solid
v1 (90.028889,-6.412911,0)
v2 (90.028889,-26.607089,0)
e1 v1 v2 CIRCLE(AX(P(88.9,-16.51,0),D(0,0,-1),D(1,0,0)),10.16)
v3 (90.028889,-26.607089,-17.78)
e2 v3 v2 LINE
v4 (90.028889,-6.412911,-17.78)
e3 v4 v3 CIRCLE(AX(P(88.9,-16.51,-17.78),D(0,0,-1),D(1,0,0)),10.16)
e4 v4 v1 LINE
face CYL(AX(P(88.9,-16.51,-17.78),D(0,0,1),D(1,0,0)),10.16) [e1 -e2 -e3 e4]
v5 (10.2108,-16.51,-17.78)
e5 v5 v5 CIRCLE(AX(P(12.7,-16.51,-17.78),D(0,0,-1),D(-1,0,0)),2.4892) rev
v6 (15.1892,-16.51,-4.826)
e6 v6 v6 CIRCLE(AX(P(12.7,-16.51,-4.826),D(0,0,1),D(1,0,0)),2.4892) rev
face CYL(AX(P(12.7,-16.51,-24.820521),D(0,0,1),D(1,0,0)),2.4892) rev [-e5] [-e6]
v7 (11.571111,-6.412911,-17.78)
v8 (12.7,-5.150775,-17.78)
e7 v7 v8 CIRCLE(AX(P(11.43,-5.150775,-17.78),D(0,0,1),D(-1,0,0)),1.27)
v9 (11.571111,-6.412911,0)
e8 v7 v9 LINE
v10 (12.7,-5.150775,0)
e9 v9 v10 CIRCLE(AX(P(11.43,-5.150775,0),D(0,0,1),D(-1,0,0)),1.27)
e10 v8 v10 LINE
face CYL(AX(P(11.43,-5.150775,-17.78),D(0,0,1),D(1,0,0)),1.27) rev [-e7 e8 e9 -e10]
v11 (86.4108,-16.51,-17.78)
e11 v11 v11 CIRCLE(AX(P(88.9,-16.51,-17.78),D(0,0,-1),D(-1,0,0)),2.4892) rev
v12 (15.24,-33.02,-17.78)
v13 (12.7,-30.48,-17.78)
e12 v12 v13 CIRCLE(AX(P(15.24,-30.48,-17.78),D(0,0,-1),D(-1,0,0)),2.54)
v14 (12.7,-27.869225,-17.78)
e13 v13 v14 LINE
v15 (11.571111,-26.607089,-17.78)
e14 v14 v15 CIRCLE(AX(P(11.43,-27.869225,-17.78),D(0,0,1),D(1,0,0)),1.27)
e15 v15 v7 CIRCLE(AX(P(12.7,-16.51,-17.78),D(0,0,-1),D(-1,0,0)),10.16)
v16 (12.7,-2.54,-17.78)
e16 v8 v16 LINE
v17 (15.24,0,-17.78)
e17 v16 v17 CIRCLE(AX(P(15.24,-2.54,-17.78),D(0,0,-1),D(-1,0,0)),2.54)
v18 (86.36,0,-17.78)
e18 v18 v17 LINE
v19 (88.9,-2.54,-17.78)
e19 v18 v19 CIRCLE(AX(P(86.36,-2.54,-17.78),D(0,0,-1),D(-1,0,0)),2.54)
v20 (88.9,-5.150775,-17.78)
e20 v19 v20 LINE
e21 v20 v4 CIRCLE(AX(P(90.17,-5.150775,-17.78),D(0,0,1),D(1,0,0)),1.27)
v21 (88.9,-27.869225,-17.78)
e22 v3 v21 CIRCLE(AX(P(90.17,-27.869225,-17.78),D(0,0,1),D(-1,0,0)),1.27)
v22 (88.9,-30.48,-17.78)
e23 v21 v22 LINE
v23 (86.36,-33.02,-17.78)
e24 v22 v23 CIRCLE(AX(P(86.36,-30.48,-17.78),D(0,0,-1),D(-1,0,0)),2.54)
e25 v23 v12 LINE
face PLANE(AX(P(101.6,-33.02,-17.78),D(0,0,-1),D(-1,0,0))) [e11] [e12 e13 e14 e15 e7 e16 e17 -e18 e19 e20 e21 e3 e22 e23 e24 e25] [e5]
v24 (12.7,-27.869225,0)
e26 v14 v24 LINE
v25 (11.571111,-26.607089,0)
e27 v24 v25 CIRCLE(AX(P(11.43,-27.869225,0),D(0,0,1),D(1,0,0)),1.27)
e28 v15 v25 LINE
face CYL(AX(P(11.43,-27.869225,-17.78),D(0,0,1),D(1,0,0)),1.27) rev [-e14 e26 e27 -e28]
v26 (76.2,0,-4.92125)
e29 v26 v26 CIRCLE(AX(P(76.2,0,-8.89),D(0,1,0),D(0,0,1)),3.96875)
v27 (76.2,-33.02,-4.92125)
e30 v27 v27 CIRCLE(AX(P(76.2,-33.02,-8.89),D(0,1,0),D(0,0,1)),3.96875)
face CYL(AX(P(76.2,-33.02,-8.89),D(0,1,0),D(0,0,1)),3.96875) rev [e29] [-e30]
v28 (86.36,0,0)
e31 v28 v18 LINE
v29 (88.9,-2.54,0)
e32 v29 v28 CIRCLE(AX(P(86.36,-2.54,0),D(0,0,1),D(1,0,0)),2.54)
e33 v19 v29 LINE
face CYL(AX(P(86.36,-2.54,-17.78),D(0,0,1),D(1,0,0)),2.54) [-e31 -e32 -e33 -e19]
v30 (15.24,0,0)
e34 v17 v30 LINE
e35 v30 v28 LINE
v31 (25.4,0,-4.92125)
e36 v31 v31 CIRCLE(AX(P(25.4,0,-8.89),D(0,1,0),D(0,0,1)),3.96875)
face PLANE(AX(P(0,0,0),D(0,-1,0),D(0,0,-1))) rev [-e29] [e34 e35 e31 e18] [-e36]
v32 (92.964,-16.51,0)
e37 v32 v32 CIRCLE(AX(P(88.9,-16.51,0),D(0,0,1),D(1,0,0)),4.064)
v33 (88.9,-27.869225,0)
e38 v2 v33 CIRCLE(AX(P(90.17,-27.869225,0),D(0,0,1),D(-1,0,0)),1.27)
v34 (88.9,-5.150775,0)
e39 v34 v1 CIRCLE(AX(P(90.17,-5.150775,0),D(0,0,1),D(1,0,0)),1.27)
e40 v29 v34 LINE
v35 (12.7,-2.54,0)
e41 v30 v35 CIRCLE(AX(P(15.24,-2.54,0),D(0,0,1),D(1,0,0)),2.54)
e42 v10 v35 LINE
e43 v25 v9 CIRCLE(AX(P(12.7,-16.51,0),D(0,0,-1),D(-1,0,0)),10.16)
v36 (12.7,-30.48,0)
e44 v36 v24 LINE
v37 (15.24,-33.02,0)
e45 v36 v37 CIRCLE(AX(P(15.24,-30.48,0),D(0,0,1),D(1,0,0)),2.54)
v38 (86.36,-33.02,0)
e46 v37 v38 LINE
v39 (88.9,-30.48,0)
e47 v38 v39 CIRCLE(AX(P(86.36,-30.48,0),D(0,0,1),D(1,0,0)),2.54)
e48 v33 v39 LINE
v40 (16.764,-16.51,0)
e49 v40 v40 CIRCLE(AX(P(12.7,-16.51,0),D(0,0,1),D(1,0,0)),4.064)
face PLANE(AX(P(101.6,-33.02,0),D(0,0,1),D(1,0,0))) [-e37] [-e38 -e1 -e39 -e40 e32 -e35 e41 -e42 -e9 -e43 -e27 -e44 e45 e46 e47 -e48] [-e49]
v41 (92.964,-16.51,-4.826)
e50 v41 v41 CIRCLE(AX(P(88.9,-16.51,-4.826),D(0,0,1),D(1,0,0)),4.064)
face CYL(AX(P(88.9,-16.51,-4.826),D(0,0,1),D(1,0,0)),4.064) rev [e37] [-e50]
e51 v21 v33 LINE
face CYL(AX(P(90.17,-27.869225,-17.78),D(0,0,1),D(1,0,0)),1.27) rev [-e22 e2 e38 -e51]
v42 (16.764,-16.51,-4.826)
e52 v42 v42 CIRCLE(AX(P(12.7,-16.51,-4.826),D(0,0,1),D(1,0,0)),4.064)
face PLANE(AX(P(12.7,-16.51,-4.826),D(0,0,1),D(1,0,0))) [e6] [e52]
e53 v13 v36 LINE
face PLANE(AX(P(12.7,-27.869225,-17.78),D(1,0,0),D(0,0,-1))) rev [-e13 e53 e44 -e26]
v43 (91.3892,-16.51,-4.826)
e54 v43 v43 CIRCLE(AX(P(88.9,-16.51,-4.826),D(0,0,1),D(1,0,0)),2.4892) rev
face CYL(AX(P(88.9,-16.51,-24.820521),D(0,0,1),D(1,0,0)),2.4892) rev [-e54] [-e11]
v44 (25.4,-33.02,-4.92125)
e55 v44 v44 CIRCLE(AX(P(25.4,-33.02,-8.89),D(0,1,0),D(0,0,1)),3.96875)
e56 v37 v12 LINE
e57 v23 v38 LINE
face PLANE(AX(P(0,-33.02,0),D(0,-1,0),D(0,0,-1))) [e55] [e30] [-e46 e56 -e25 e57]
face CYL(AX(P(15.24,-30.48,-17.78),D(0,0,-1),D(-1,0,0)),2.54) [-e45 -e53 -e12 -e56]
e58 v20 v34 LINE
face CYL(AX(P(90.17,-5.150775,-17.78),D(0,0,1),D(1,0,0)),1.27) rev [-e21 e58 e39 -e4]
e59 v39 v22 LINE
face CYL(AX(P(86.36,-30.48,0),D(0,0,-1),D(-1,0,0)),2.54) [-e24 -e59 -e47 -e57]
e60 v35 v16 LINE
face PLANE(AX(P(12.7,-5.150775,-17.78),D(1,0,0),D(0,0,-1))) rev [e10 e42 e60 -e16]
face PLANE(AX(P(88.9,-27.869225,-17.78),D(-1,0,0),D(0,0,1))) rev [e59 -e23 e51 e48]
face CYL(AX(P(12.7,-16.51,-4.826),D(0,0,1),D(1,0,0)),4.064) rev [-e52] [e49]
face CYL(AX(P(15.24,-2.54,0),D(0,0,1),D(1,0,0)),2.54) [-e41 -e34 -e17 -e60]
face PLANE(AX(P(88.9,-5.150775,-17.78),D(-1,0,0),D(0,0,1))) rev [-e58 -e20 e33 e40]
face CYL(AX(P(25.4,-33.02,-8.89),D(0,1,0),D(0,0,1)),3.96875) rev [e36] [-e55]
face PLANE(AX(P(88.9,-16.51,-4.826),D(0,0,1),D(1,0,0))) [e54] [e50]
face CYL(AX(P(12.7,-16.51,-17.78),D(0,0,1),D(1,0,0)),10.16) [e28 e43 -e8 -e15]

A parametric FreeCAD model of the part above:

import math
import FreeCAD as App
import Part
import Sketcher

V = App.Vector
Q = App.Units.Quantity


def edges_at(feature, points):
    """Names of the edges that pass closest to the given points."""
    edges = feature.Shape.Edges
    near = lambda p: min(range(len(edges)), key=lambda i: edges[i].distToShape(Part.Vertex(*p))[0])
    return sorted({f"Edge{near(p) + 1}" for p in points})


def add_polygon(sketch, points):
    """Adds a closed chain of lines whose ends are joined by coincident constraints."""
    first, n = sketch.GeometryCount, len(points)
    for a, b in zip(points, points[1:] + points[:1]):
        sketch.addGeometry(Part.LineSegment(App.Vector(*a, 0), App.Vector(*b, 0)), False)
    for i in range(n):
        sketch.addConstraint(Sketcher.Constraint("Coincident", first + i, 2, first + (i + 1) % n, 1))

doc = App.newDocument("Part")
body = doc.addObject("PartDesign::Body", "Body")

# Sketch on XZ plane
sketch1 = body.newObject("Sketcher::SketchObject", "Sketch")
sketch1.AttachmentSupport = (doc.getObject("XZ_Plane"), [""])
sketch1.MapMode = "FlatFace"
add_polygon(sketch1, [(0, -17.8), (0, 0), (101.6, 0), (101.6, -17.8)])  # lines 0-3
sketch1.addGeometry(Part.Circle(V(25.4, -8.9, 0), V(0, 0, 1), 4), False)  # 4
sketch1.addGeometry(Part.Circle(V(76.2, -8.9, 0), V(0, 0, 1), 4), False)  # 5
sketch1.addConstraint(Sketcher.Constraint("Vertical", 0))
sketch1.addConstraint(Sketcher.Constraint("Horizontal", 1))
sketch1.addConstraint(Sketcher.Constraint("Vertical", 2))
sketch1.addConstraint(Sketcher.Constraint("Horizontal", 3))
sketch1.addConstraint(Sketcher.Constraint("Coincident", 0, 2, -1, 1))
sketch1.addConstraint(Sketcher.Constraint("Equal", 4, 5))
sketch1.addConstraint(Sketcher.Constraint("Horizontal", 4, 3, 5, 3))
sketch1.addConstraint(Sketcher.Constraint("DistanceX", 1, 1, 1, 2, Q("4 in")))
sketch1.addConstraint(Sketcher.Constraint("Diameter", 4, Q("0.3125 in")))
sketch1.addConstraint(Sketcher.Constraint("DistanceY", 0, 1, 0, 2, Q("0.7 in")))
sketch1.addConstraint(Sketcher.Constraint("DistanceX", -1, 1, 4, 3, Q("1 in")))
sketch1.addConstraint(Sketcher.Constraint("DistanceX", -1, 1, 5, 3, Q("3 in")))
sketch1.addConstraint(Sketcher.Constraint("DistanceY", 4, 3, -1, 1, Q("0.35 in")))
pad1 = body.newObject("PartDesign::Pad", "Pad")
pad1.Profile = sketch1
pad1.Length = Q("1.3 in")

# Sketch on XY plane
sketch2 = body.newObject("Sketcher::SketchObject", "Sketch001")
sketch2.AttachmentSupport = (doc.getObject("XY_Plane"), [""])
sketch2.MapMode = "FlatFace"
sketch2.addGeometry(Part.Circle(V(88.9, -16.5, 0), V(0, 0, 1), 2.5), False)
sketch2.addGeometry(Part.Circle(V(12.7, -16.5, 0), V(0, 0, 1), 2.5), False)
sketch2.addConstraint(Sketcher.Constraint("Equal", 0, 1))
sketch2.addConstraint(Sketcher.Constraint("Horizontal", 0, 3, 1, 3))
sketch2.addConstraint(Sketcher.Constraint("Diameter", 0, Q("0.196 in")))
sketch2.addConstraint(Sketcher.Constraint("DistanceX", 1, 3, 0, 3, Q("3 in")))
sketch2.addConstraint(Sketcher.Constraint("DistanceX", -1, 1, 0, 3, Q("3.5 in")))
sketch2.addConstraint(Sketcher.Constraint("DistanceY", 0, 3, -1, 1, Q("0.65 in")))
pocket1 = body.newObject("PartDesign::Pocket", "Pocket")
pocket1.Profile = sketch2
pocket1.Length = Q("0.7 in")

# Sketch on XY plane
sketch3 = body.newObject("Sketcher::SketchObject", "Sketch002")
sketch3.AttachmentSupport = (doc.getObject("XY_Plane"), [""])
sketch3.MapMode = "FlatFace"
sketch3.addGeometry(Part.Circle(V(88.9, -16.5, 0), V(0, 0, 1), 4.1), False)
sketch3.addGeometry(Part.Circle(V(12.7, -16.5, 0), V(0, 0, 1), 4.1), False)
sketch3.addConstraint(Sketcher.Constraint("Equal", 0, 1))
sketch3.addConstraint(Sketcher.Constraint("Horizontal", 0, 3, 1, 3))
sketch3.addConstraint(Sketcher.Constraint("Diameter", 0, Q("0.32 in")))
sketch3.addConstraint(Sketcher.Constraint("DistanceX", 1, 3, 0, 3, Q("3 in")))
sketch3.addConstraint(Sketcher.Constraint("DistanceX", -1, 1, 0, 3, Q("3.5 in")))
sketch3.addConstraint(Sketcher.Constraint("DistanceY", 0, 3, -1, 1, Q("0.65 in")))
pocket2 = body.newObject("PartDesign::Pocket", "Pocket001")
pocket2.Profile = sketch3
pocket2.Length = Q("0.19 in")

# Sketch on XY plane
sketch4 = body.newObject("Sketcher::SketchObject", "Sketch003")
sketch4.AttachmentSupport = (doc.getObject("XY_Plane"), [""])
sketch4.MapMode = "FlatFace"
sketch4.addGeometry(Part.LineSegment(V(12.7, -5.2, 0), V(12.7, 0, 0)), False)
sketch4.addGeometry(Part.LineSegment(V(12.7, 0, 0), V(0, 0, 0)), False)
sketch4.addGeometry(Part.LineSegment(V(0, 0, 0), V(0, -33, 0)), False)
sketch4.addGeometry(Part.LineSegment(V(0, -33, 0), V(12.7, -33, 0)), False)
sketch4.addGeometry(Part.LineSegment(V(12.7, -33, 0), V(12.7, -27.9, 0)), False)
sketch4.addGeometry(Part.ArcOfCircle(Part.Circle(V(11.4, -27.9, 0), V(0, 0, 1), 1.3), math.radians(0), math.radians(84)), False)
sketch4.addGeometry(Part.ArcOfCircle(Part.Circle(V(12.7, -16.5, 0), V(0, 0, 1), 10.2), math.radians(96), math.radians(264)), False)
sketch4.addGeometry(Part.ArcOfCircle(Part.Circle(V(11.4, -5.2, 0), V(0, 0, 1), 1.3), math.radians(-84), math.radians(0)), False)
sketch4.addGeometry(Part.LineSegment(V(88.9, 0, 0), V(88.9, -5.2, 0)), False)
sketch4.addGeometry(Part.ArcOfCircle(Part.Circle(V(90.2, -5.2, 0), V(0, 0, 1), 1.3), math.radians(-180), math.radians(-96)), False)
sketch4.addGeometry(Part.ArcOfCircle(Part.Circle(V(88.9, -16.5, 0), V(0, 0, 1), 10.2), math.radians(-84), math.radians(84)), False)
sketch4.addGeometry(Part.ArcOfCircle(Part.Circle(V(90.2, -27.9, 0), V(0, 0, 1), 1.3), math.radians(96), math.radians(180)), False)
sketch4.addGeometry(Part.LineSegment(V(88.9, -27.9, 0), V(88.9, -33, 0)), False)
sketch4.addGeometry(Part.LineSegment(V(88.9, -33, 0), V(101.6, -33, 0)), False)
sketch4.addGeometry(Part.LineSegment(V(101.6, -33, 0), V(101.6, 0, 0)), False)
sketch4.addGeometry(Part.LineSegment(V(101.6, 0, 0), V(88.9, 0, 0)), False)
sketch4.addConstraint(Sketcher.Constraint("Coincident", 0, 2, 1, 1))
sketch4.addConstraint(Sketcher.Constraint("Coincident", 1, 2, 2, 1))
sketch4.addConstraint(Sketcher.Constraint("Coincident", 2, 2, 3, 1))
sketch4.addConstraint(Sketcher.Constraint("Coincident", 3, 2, 4, 1))
sketch4.addConstraint(Sketcher.Constraint("Tangent", 4, 2, 5, 1))
sketch4.addConstraint(Sketcher.Constraint("Tangent", 5, 2, 6, 2))
sketch4.addConstraint(Sketcher.Constraint("Tangent", 6, 1, 7, 1))
sketch4.addConstraint(Sketcher.Constraint("Tangent", 7, 2, 0, 1))
sketch4.addConstraint(Sketcher.Constraint("Tangent", 8, 2, 9, 1))
sketch4.addConstraint(Sketcher.Constraint("Tangent", 9, 2, 10, 2))
sketch4.addConstraint(Sketcher.Constraint("Tangent", 10, 1, 11, 1))
sketch4.addConstraint(Sketcher.Constraint("Tangent", 11, 2, 12, 1))
sketch4.addConstraint(Sketcher.Constraint("Coincident", 12, 2, 13, 1))
sketch4.addConstraint(Sketcher.Constraint("Coincident", 13, 2, 14, 1))
sketch4.addConstraint(Sketcher.Constraint("Coincident", 14, 2, 15, 1))
sketch4.addConstraint(Sketcher.Constraint("Coincident", 15, 2, 8, 1))
sketch4.addConstraint(Sketcher.Constraint("Vertical", 0))
sketch4.addConstraint(Sketcher.Constraint("Horizontal", 1))
sketch4.addConstraint(Sketcher.Constraint("Vertical", 2))
sketch4.addConstraint(Sketcher.Constraint("Horizontal", 3))
sketch4.addConstraint(Sketcher.Constraint("Vertical", 4))
sketch4.addConstraint(Sketcher.Constraint("Vertical", 8))
sketch4.addConstraint(Sketcher.Constraint("Vertical", 12))
sketch4.addConstraint(Sketcher.Constraint("Horizontal", 13))
sketch4.addConstraint(Sketcher.Constraint("Vertical", 14))
sketch4.addConstraint(Sketcher.Constraint("Horizontal", 15))
sketch4.addConstraint(Sketcher.Constraint("Coincident", 1, 2, -1, 1))
sketch4.addConstraint(Sketcher.Constraint("Equal", 5, 7))
sketch4.addConstraint(Sketcher.Constraint("Equal", 7, 9))
sketch4.addConstraint(Sketcher.Constraint("Equal", 6, 10))
sketch4.addConstraint(Sketcher.Constraint("Equal", 9, 11))
sketch4.addConstraint(Sketcher.Constraint("PointOnObject", 14, 2, -1))
sketch4.addConstraint(Sketcher.Constraint("Horizontal", 7, 3, 9, 3))
sketch4.addConstraint(Sketcher.Constraint("Horizontal", 6, 3, 10, 3))
sketch4.addConstraint(Sketcher.Constraint("Horizontal", 5, 3, 11, 3))
sketch4.addConstraint(Sketcher.Constraint("Horizontal", 3, 2, 12, 2))
sketch4.addConstraint(Sketcher.Constraint("Vertical", 5, 3, 7, 3))
sketch4.addConstraint(Sketcher.Constraint("Vertical", 6, 3, 0, 2))
sketch4.addConstraint(Sketcher.Constraint("Equal", 3, 13))
sketch4.addConstraint(Sketcher.Constraint("Equal", 0, 4))
sketch4.addConstraint(Sketcher.Constraint("Radius", 6, Q("0.4 in")))
sketch4.addConstraint(Sketcher.Constraint("Radius", 5, Q("0.05 in")))
sketch4.addConstraint(Sketcher.Constraint("DistanceX", 1, 2, 1, 1, Q("0.5 in")))
sketch4.addConstraint(Sketcher.Constraint("DistanceY", 2, 2, 2, 1, Q("1.3 in")))
sketch4.addConstraint(Sketcher.Constraint("DistanceX", -1, 1, 13, 2, Q("4 in")))
pocket3 = body.newObject("PartDesign::Pocket", "Pocket002")
pocket3.Profile = sketch4
pocket3.Type = "ThroughAll"
doc.recompute()

fillet = body.newObject("PartDesign::Fillet", "Fillet")
fillet.Base = (pocket3, edges_at(pocket3, [
    (12.7, -33.02, -8.89),
    (12.7, 0, -8.89),
    (88.9, 0, -8.89),
    (88.9, -33.02, -8.89),
]))
fillet.Radius = Q("0.1 in")

doc.recompute()
